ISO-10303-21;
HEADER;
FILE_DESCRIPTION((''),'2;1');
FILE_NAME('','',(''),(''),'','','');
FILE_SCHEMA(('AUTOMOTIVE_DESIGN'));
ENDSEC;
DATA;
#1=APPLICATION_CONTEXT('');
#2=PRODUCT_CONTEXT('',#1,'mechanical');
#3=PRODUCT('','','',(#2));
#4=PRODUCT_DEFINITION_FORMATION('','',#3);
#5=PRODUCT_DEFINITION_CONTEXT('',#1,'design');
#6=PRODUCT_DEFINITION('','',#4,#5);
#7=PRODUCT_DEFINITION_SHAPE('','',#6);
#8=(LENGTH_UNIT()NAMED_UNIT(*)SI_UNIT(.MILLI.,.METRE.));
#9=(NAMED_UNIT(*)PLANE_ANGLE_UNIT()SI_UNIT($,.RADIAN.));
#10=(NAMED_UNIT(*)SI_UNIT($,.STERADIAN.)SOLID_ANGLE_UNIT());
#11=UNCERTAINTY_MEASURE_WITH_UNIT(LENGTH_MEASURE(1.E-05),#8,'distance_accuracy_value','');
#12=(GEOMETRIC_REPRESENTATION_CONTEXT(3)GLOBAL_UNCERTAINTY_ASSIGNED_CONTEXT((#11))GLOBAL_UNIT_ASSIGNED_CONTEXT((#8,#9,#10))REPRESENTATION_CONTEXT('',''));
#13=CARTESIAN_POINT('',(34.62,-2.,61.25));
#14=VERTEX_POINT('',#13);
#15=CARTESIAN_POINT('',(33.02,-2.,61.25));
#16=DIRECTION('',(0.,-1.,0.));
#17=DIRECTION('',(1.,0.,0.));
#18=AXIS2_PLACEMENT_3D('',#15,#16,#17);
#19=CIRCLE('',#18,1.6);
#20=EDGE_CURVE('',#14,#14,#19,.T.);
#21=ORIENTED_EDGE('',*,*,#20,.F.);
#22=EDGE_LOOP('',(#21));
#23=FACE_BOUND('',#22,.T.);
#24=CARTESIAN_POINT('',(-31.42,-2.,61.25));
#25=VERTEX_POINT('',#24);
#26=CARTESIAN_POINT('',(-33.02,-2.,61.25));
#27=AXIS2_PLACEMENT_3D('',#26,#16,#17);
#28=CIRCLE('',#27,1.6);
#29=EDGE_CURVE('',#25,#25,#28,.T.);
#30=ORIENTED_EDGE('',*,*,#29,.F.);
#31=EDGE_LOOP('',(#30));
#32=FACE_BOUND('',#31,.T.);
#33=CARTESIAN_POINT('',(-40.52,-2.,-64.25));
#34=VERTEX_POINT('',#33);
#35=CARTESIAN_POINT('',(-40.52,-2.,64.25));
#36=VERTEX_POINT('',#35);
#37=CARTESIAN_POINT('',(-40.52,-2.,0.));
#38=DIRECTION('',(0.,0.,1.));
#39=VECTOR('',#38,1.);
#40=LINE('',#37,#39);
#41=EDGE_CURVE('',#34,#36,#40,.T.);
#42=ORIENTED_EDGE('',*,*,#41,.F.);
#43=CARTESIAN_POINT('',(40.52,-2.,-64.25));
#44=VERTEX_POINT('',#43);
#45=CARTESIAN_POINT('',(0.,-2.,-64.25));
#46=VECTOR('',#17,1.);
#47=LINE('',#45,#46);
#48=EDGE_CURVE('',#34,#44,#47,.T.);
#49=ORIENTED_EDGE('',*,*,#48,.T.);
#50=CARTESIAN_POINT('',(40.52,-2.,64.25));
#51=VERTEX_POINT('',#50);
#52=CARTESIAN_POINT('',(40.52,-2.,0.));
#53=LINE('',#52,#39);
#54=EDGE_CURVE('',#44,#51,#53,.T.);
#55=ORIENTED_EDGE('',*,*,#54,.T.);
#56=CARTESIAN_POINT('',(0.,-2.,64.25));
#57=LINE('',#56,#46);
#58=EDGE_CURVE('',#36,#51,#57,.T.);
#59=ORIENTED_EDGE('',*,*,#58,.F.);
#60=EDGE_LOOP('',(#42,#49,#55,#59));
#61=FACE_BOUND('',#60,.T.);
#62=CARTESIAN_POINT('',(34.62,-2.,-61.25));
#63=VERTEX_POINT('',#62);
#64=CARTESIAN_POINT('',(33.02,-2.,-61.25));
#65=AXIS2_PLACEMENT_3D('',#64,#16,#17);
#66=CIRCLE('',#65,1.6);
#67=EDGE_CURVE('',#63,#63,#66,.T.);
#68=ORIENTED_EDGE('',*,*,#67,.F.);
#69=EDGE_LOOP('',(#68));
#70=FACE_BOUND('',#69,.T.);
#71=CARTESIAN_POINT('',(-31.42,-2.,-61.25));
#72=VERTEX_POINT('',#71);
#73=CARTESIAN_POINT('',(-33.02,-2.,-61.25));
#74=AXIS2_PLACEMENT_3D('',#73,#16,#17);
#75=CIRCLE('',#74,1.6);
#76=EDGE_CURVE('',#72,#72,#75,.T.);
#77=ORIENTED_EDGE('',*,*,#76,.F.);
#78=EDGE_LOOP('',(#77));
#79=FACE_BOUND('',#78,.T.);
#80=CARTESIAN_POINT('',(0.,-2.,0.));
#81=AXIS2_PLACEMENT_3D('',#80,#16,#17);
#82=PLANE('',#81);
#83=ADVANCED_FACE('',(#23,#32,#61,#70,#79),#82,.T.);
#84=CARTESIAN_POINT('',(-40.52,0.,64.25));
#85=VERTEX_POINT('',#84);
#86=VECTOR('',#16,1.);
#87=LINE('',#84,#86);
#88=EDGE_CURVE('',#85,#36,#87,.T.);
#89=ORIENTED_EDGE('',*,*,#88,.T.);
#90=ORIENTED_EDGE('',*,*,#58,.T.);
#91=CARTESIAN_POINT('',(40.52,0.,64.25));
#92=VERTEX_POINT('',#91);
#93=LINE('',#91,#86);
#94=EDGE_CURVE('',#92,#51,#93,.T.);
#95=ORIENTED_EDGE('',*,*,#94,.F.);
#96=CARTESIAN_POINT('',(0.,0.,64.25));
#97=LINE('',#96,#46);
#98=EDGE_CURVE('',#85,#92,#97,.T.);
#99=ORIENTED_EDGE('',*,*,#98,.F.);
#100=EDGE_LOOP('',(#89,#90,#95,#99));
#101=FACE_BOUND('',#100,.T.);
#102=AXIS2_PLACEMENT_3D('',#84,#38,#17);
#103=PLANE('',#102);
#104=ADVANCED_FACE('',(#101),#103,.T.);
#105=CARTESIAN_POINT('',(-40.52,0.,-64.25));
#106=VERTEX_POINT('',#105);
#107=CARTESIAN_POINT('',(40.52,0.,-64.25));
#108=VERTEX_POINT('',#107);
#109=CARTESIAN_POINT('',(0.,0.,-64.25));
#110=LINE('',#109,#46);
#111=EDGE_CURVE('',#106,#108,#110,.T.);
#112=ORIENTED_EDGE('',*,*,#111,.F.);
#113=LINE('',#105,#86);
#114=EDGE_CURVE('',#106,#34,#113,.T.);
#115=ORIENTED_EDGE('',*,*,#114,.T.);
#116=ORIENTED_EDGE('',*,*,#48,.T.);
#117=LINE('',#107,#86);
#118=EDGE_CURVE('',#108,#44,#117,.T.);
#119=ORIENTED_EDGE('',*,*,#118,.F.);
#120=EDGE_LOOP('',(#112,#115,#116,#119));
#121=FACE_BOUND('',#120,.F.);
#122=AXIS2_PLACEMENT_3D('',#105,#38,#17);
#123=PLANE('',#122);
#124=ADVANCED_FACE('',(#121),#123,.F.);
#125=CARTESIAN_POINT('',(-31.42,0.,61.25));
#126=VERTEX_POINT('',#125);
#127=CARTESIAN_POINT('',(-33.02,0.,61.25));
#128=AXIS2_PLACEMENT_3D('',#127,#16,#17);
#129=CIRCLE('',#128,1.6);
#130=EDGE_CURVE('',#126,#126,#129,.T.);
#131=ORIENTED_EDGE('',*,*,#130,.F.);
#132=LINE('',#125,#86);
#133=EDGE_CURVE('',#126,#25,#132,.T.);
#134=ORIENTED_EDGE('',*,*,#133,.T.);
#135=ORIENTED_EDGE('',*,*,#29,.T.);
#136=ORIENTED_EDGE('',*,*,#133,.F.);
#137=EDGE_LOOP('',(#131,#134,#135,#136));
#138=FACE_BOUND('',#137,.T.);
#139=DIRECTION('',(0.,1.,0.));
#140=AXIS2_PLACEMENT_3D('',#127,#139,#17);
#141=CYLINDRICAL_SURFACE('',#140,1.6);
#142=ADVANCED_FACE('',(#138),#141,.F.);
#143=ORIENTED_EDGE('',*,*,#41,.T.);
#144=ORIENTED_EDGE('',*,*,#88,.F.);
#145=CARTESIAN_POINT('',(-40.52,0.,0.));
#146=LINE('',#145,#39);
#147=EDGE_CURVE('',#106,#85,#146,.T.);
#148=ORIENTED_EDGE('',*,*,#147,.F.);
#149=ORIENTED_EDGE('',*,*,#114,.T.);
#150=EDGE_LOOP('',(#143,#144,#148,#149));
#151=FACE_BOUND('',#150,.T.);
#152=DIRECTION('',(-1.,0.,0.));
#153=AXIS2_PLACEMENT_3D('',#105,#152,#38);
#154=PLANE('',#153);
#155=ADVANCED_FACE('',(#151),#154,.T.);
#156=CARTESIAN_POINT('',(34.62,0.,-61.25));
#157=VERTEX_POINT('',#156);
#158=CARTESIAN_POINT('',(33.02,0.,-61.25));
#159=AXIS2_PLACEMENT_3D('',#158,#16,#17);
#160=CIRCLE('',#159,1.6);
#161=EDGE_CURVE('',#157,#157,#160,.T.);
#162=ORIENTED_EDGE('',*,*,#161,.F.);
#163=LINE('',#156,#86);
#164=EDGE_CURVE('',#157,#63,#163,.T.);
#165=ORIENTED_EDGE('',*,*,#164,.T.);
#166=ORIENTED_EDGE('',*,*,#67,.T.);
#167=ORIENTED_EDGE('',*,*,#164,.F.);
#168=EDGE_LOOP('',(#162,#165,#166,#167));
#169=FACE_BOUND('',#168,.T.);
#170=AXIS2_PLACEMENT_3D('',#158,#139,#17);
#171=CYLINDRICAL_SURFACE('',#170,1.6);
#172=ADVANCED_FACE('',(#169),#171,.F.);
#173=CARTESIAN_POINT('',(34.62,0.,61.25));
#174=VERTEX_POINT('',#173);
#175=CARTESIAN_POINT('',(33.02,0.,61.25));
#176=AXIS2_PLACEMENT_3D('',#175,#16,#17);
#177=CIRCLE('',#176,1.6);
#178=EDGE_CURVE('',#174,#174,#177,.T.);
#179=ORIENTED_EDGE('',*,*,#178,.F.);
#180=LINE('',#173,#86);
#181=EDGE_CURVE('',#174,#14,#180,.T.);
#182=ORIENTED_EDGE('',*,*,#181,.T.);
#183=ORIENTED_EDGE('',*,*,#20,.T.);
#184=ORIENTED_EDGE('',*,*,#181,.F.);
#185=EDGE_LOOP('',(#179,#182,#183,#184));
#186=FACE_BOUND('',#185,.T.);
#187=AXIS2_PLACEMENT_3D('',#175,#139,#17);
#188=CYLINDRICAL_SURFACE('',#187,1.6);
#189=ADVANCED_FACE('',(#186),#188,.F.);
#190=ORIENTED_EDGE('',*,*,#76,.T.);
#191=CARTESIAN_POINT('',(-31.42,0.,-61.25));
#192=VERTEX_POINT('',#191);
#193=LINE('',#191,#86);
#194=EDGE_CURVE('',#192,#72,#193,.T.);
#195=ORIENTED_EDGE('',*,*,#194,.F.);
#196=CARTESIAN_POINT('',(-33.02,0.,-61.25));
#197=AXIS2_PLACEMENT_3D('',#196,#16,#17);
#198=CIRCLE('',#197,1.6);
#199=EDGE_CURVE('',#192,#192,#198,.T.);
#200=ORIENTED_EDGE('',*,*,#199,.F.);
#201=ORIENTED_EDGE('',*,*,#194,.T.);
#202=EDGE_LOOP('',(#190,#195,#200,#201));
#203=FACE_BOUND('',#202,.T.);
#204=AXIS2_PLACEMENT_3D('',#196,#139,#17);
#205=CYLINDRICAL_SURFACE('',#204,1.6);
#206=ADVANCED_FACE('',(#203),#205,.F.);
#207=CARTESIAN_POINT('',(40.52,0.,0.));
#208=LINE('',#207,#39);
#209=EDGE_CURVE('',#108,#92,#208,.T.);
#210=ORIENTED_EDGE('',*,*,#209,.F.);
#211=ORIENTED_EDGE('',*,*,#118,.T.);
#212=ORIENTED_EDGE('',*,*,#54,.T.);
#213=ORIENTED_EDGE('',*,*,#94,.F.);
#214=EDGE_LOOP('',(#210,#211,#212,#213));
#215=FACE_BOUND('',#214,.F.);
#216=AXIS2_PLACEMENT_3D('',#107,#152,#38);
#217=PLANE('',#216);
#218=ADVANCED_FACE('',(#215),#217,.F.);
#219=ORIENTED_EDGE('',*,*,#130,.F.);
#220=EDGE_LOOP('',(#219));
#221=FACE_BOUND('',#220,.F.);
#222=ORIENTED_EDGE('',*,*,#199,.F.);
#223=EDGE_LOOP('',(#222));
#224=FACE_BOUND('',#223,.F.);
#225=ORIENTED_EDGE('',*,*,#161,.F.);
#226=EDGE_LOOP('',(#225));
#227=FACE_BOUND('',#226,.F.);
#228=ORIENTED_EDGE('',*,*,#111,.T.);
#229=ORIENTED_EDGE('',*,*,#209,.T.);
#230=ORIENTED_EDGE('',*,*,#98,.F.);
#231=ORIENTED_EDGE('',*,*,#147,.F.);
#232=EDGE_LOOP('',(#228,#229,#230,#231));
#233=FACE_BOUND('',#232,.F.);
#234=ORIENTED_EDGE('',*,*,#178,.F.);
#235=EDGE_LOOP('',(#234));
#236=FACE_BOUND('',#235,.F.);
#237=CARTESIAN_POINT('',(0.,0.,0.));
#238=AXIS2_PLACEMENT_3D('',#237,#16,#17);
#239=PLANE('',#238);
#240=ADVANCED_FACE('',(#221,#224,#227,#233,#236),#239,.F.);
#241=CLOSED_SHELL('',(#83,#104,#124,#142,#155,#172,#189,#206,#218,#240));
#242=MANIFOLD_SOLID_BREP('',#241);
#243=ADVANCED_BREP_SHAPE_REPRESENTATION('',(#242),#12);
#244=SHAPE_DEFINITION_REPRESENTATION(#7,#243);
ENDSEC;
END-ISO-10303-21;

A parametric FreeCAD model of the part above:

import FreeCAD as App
import Part
import Sketcher
from FreeCAD import Vector
Q = App.Units.Quantity

doc = App.newDocument("Part")
body = doc.addObject("PartDesign::Body", "Body")

# Sketch on XZ plane
sketch1 = doc.addObject("Sketcher::SketchObject", "Sketch")
body.addObject(sketch1)
sketch1.AttachmentSupport = (doc.XZ_Plane, [""])
sketch1.MapMode = "FlatFace"
sketch1.addGeometry([
    Part.LineSegment(Vector(-40.5, 64.2, 0), Vector(-40.5, -64.2, 0)),  # 0
    Part.LineSegment(Vector(-40.5, -64.2, 0), Vector(40.5, -64.2, 0)),  # 1
    Part.LineSegment(Vector(40.5, -64.2, 0), Vector(40.5, 64.2, 0)),  # 2
    Part.LineSegment(Vector(40.5, 64.2, 0), Vector(-40.5, 64.2, 0)),  # 3
    Part.Circle(Vector(-33, -61.2, 0), Vector(0, 0, 1), 1.6),  # 4
    Part.Circle(Vector(33, -61.2, 0), Vector(0, 0, 1), 1.6),  # 5
    Part.Circle(Vector(-33, 61.2, 0), Vector(0, 0, 1), 1.6),  # 6
    Part.Circle(Vector(33, 61.2, 0), Vector(0, 0, 1), 1.6),  # 7
], False)
sketch1.addConstraint([
    Sketcher.Constraint("Coincident", 0, 2, 1, 1),
    Sketcher.Constraint("Coincident", 1, 2, 2, 1),
    Sketcher.Constraint("Coincident", 2, 2, 3, 1),
    Sketcher.Constraint("Coincident", 3, 2, 0, 1),
    Sketcher.Constraint("Vertical", 0),
    Sketcher.Constraint("Horizontal", 1),
    Sketcher.Constraint("Vertical", 2),
    Sketcher.Constraint("Horizontal", 3),
    Sketcher.Constraint("Equal", 4, 5),
    Sketcher.Constraint("Equal", 5, 6),
    Sketcher.Constraint("Equal", 6, 7),
    Sketcher.Constraint("Symmetric", 5, 3, 6, 3, -1, 1),
    Sketcher.Constraint("Symmetric", 4, 3, 7, 3, -1, 1),
    Sketcher.Constraint("Symmetric", 0, 2, 2, 2, -1, 1),
    Sketcher.Constraint("Symmetric", 4, 3, 5, 3, -2),
    Sketcher.Constraint("Diameter", 4, Q("3.2 mm")),
    Sketcher.Constraint("DistanceY", 0, 2, 0, 1, Q("128.5 mm")),
    Sketcher.Constraint("DistanceY", 0, 2, 4, 3, Q("3 mm")),
    Sketcher.Constraint("DistanceX", 1, 1, 1, 2, Q("81.04 mm")),
    Sketcher.Constraint("DistanceX", 0, 2, 4, 3, Q("7.5 mm")),
])
pad1 = doc.addObject("PartDesign::Pad", "Pad")
body.addObject(pad1)
pad1.Profile = sketch1
pad1.Length = 2

doc.recompute()
